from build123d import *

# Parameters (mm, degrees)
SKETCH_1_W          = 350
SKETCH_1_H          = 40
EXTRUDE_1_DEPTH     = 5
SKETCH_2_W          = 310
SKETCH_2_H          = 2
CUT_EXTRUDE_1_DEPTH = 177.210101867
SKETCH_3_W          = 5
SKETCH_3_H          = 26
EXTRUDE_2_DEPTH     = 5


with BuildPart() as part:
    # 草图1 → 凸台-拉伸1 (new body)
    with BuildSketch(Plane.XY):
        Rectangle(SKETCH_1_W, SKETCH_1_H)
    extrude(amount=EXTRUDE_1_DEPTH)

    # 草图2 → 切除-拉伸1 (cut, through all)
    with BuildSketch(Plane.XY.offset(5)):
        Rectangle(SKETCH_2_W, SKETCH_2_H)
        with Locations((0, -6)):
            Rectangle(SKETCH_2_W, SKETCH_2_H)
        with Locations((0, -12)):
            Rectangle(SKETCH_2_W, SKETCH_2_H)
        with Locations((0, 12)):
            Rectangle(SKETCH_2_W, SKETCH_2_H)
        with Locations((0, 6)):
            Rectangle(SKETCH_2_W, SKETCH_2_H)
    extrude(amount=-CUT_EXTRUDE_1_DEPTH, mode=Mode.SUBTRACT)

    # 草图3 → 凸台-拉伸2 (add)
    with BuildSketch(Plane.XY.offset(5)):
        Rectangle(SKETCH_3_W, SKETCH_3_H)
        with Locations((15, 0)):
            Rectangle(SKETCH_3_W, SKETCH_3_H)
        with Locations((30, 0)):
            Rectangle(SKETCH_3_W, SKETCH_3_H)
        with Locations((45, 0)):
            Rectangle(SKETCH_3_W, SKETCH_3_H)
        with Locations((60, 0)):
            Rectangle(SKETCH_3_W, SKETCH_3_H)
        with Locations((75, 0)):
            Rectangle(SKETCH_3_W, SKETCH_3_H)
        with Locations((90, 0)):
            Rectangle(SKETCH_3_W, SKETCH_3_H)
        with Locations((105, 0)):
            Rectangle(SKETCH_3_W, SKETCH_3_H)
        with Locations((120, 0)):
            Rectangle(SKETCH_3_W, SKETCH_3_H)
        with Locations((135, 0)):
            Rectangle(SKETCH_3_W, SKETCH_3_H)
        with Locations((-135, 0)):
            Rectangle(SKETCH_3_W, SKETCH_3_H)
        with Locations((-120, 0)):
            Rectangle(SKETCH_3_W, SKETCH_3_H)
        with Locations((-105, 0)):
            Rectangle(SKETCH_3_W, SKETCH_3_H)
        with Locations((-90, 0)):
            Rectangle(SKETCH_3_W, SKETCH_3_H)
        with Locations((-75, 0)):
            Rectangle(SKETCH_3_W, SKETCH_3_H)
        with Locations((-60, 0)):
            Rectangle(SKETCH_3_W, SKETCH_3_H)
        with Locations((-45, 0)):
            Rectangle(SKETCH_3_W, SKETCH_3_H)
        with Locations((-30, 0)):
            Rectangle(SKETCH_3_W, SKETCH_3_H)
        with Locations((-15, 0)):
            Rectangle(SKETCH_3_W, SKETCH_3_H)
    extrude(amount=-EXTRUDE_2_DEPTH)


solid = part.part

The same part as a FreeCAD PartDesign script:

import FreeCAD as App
import Part
import Sketcher
from FreeCAD import Vector


def add_polygon(sketch, points):
    """Adds a closed chain of lines whose ends are joined by coincident constraints."""
    first, n = sketch.GeometryCount, len(points)
    for a, b in zip(points, points[1:] + points[:1]):
        sketch.addGeometry(Part.LineSegment(App.Vector(*a, 0), App.Vector(*b, 0)), False)
    for i in range(n):
        sketch.addConstraint(Sketcher.Constraint("Coincident", first + i, 2, first + (i + 1) % n, 1))

doc = App.newDocument("Part")
params = doc.addObject("Spreadsheet::Sheet", "Params")
for row, (alias, value) in enumerate([
    ("sketch1_width", "350 mm"),
    ("sketch1_height", "40 mm"),
    ("pad1_length", "5 mm"),
    ("sketch2_width", "310 mm"),
    ("sketch2_height", "2 mm"),
    ("sketch3_width", "5 mm"),
    ("sketch3_height", "26 mm"),
    ("pad2_length", "5 mm"),
], start=1):
    params.set(f"A{row}", alias)
    params.set(f"B{row}", "=" + value)
    params.setAlias(f"B{row}", alias)

body = doc.addObject("PartDesign::Body", "Body")

sketch1 = doc.addObject("Sketcher::SketchObject", "Sketch")
body.addObject(sketch1)
sketch1.AttachmentSupport = (doc.XY_Plane, [""])
sketch1.MapMode = "FlatFace"
add_polygon(sketch1, [(-175, 20), (-175, -20), (175, -20), (175, 20)])
sketch1.addConstraint([
    Sketcher.Constraint("Vertical", 0),
    Sketcher.Constraint("Horizontal", 1),
    Sketcher.Constraint("Vertical", 2),
    Sketcher.Constraint("Horizontal", 3),
    Sketcher.Constraint("Symmetric", 0, 2, 2, 2, -1, 1),
    Sketcher.Constraint("DistanceX", 1, 1, 1, 2, 350.0),
    Sketcher.Constraint("DistanceY", 0, 2, 0, 1, 40.0),
])
sketch1.setExpression("Constraints[9]", "Params.sketch1_width")
sketch1.setExpression("Constraints[10]", "Params.sketch1_height")
pad1 = doc.addObject("PartDesign::Pad", "Pad")
body.addObject(pad1)
pad1.Profile = sketch1
pad1.setExpression("Length", "Params.pad1_length")

sketch2 = doc.addObject("Sketcher::SketchObject", "Sketch001")
body.addObject(sketch2)
sketch2.AttachmentSupport = (doc.XY_Plane, [""])
sketch2.MapMode = "FlatFace"
sketch2.AttachmentOffset = App.Placement(Vector(0, 0, 5), App.Rotation())
add_polygon(sketch2, [(-155, 1), (-155, -1), (155, -1), (155, 1)])
add_polygon(sketch2, [(-155, -5), (-155, -7), (155, -7), (155, -5)])
add_polygon(sketch2, [(-155, -11), (-155, -13), (155, -13), (155, -11)])
add_polygon(sketch2, [(-155, 13), (-155, 11), (155, 11), (155, 13)])
add_polygon(sketch2, [(-155, 7), (-155, 5), (155, 5), (155, 7)])
sketch2.addConstraint([
    Sketcher.Constraint("Vertical", 0),
    Sketcher.Constraint("Horizontal", 1),
    Sketcher.Constraint("Vertical", 2),
    Sketcher.Constraint("Horizontal", 3),
    Sketcher.Constraint("Vertical", 4),
    Sketcher.Constraint("Horizontal", 5),
    Sketcher.Constraint("Vertical", 6),
    Sketcher.Constraint("Horizontal", 7),
    Sketcher.Constraint("Vertical", 8),
    Sketcher.Constraint("Horizontal", 9),
    Sketcher.Constraint("Vertical", 10),
    Sketcher.Constraint("Horizontal", 11),
    Sketcher.Constraint("Vertical", 12),
    Sketcher.Constraint("Horizontal", 13),
    Sketcher.Constraint("Vertical", 14),
    Sketcher.Constraint("Horizontal", 15),
    Sketcher.Constraint("Vertical", 16),
    Sketcher.Constraint("Horizontal", 17),
    Sketcher.Constraint("Vertical", 18),
    Sketcher.Constraint("Horizontal", 19),
    Sketcher.Constraint("Symmetric", 0, 2, 2, 2, -1, 1),
    Sketcher.Constraint("Symmetric", 10, 2, 12, 2, -1, 1),
    Sketcher.Constraint("Symmetric", 8, 2, 14, 2, -1, 1),
    Sketcher.Constraint("Symmetric", 6, 2, 16, 2, -1, 1),
    Sketcher.Constraint("Symmetric", 4, 2, 18, 2, -1, 1),
    Sketcher.Constraint("Vertical", 3, 2, 4, 2),
    Sketcher.Constraint("Vertical", 2, 2, 5, 2),
    Sketcher.Constraint("Vertical", 7, 2, 8, 2),
    Sketcher.Constraint("Vertical", 6, 2, 9, 2),
    Sketcher.Constraint("Equal", 2, 4),
    Sketcher.Constraint("Equal", 6, 8),
    Sketcher.Constraint("DistanceX", 1, 1, 1, 2, 310.0),
    Sketcher.Constraint("DistanceY", 0, 2, 0, 1, 2.0),
    Sketcher.Constraint("DistanceY", 4, 2, -1, 1, 7.0),
    Sketcher.Constraint("DistanceY", 8, 2, -1, 1, 13.0),
])
sketch2.setExpression("Constraints[51]", "Params.sketch2_width")
sketch2.setExpression("Constraints[52]", "Params.sketch2_height")
pocket1 = doc.addObject("PartDesign::Pocket", "Pocket")
body.addObject(pocket1)
pocket1.Profile = sketch2
pocket1.Type = "ThroughAll"

sketch3 = doc.addObject("Sketcher::SketchObject", "Sketch002")
body.addObject(sketch3)
sketch3.AttachmentSupport = (doc.XY_Plane, [""])
sketch3.MapMode = "FlatFace"
sketch3.AttachmentOffset = App.Placement(Vector(0, 0, 5), App.Rotation())
add_polygon(sketch3, [(-2, 13), (-2, -13), (2, -13), (2, 13)])
add_polygon(sketch3, [(12, 13), (12, -13), (18, -13), (18, 13)])
add_polygon(sketch3, [(28, 13), (28, -13), (32, -13), (32, 13)])
add_polygon(sketch3, [(42, 13), (42, -13), (48, -13), (48, 13)])
add_polygon(sketch3, [(58, 13), (58, -13), (62, -13), (62, 13)])
add_polygon(sketch3, [(72, 13), (72, -13), (78, -13), (78, 13)])
add_polygon(sketch3, [(88, 13), (88, -13), (92, -13), (92, 13)])
add_polygon(sketch3, [(102, 13), (102, -13), (108, -13), (108, 13)])
add_polygon(sketch3, [(118, 13), (118, -13), (122, -13), (122, 13)])
add_polygon(sketch3, [(132, 13), (132, -13), (138, -13), (138, 13)])
add_polygon(sketch3, [(-138, 13), (-138, -13), (-132, -13), (-132, 13)])
add_polygon(sketch3, [(-122, 13), (-122, -13), (-118, -13), (-118, 13)])
add_polygon(sketch3, [(-108, 13), (-108, -13), (-102, -13), (-102, 13)])
add_polygon(sketch3, [(-92, 13), (-92, -13), (-88, -13), (-88, 13)])
add_polygon(sketch3, [(-78, 13), (-78, -13), (-72, -13), (-72, 13)])
add_polygon(sketch3, [(-62, 13), (-62, -13), (-58, -13), (-58, 13)])
add_polygon(sketch3, [(-48, 13), (-48, -13), (-42, -13), (-42, 13)])
add_polygon(sketch3, [(-32, 13), (-32, -13), (-28, -13), (-28, 13)])
add_polygon(sketch3, [(-18, 13), (-18, -13), (-12, -13), (-12, 13)])
sketch3.addConstraint([
    Sketcher.Constraint("Vertical", 0),
    Sketcher.Constraint("Horizontal", 1),
    Sketcher.Constraint("Vertical", 2),
    Sketcher.Constraint("Horizontal", 3),
    Sketcher.Constraint("Vertical", 4),
    Sketcher.Constraint("Horizontal", 5),
    Sketcher.Constraint("Vertical", 6),
    Sketcher.Constraint("Horizontal", 7),
    Sketcher.Constraint("Vertical", 8),
    Sketcher.Constraint("Horizontal", 9),
    Sketcher.Constraint("Vertical", 10),
    Sketcher.Constraint("Horizontal", 11),
    Sketcher.Constraint("Vertical", 12),
    Sketcher.Constraint("Horizontal", 13),
    Sketcher.Constraint("Vertical", 14),
    Sketcher.Constraint("Horizontal", 15),
    Sketcher.Constraint("Vertical", 16),
    Sketcher.Constraint("Horizontal", 17),
    Sketcher.Constraint("Vertical", 18),
    Sketcher.Constraint("Horizontal", 19),
    Sketcher.Constraint("Vertical", 20),
    Sketcher.Constraint("Horizontal", 21),
    Sketcher.Constraint("Vertical", 22),
    Sketcher.Constraint("Horizontal", 23),
    Sketcher.Constraint("Vertical", 24),
    Sketcher.Constraint("Horizontal", 25),
    Sketcher.Constraint("Vertical", 26),
    Sketcher.Constraint("Horizontal", 27),
    Sketcher.Constraint("Vertical", 28),
    Sketcher.Constraint("Horizontal", 29),
    Sketcher.Constraint("Vertical", 30),
    Sketcher.Constraint("Horizontal", 31),
    Sketcher.Constraint("Vertical", 32),
    Sketcher.Constraint("Horizontal", 33),
    Sketcher.Constraint("Vertical", 34),
    Sketcher.Constraint("Horizontal", 35),
    Sketcher.Constraint("Vertical", 36),
    Sketcher.Constraint("Horizontal", 37),
    Sketcher.Constraint("Vertical", 38),
    Sketcher.Constraint("Horizontal", 39),
    Sketcher.Constraint("Vertical", 40),
    Sketcher.Constraint("Horizontal", 41),
    Sketcher.Constraint("Vertical", 42),
    Sketcher.Constraint("Horizontal", 43),
    Sketcher.Constraint("Vertical", 44),
    Sketcher.Constraint("Horizontal", 45),
    Sketcher.Constraint("Vertical", 46),
    Sketcher.Constraint("Horizontal", 47),
    Sketcher.Constraint("Vertical", 48),
    Sketcher.Constraint("Horizontal", 49),
    Sketcher.Constraint("Vertical", 50),
    Sketcher.Constraint("Horizontal", 51),
    Sketcher.Constraint("Vertical", 52),
    Sketcher.Constraint("Horizontal", 53),
    Sketcher.Constraint("Vertical", 54),
    Sketcher.Constraint("Horizontal", 55),
    Sketcher.Constraint("Vertical", 56),
    Sketcher.Constraint("Horizontal", 57),
    Sketcher.Constraint("Vertical", 58),
    Sketcher.Constraint("Horizontal", 59),
    Sketcher.Constraint("Vertical", 60),
    Sketcher.Constraint("Horizontal", 61),
    Sketcher.Constraint("Vertical", 62),
    Sketcher.Constraint("Horizontal", 63),
    Sketcher.Constraint("Vertical", 64),
    Sketcher.Constraint("Horizontal", 65),
    Sketcher.Constraint("Vertical", 66),
    Sketcher.Constraint("Horizontal", 67),
    Sketcher.Constraint("Vertical", 68),
    Sketcher.Constraint("Horizontal", 69),
    Sketcher.Constraint("Vertical", 70),
    Sketcher.Constraint("Horizontal", 71),
    Sketcher.Constraint("Vertical", 72),
    Sketcher.Constraint("Horizontal", 73),
    Sketcher.Constraint("Vertical", 74),
    Sketcher.Constraint("Horizontal", 75),
    Sketcher.Constraint("Symmetric", 0, 2, 2, 2, -1, 1),
    Sketcher.Constraint("Symmetric", 38, 2, 40, 2, -1, 1),
    Sketcher.Constraint("Symmetric", 36, 2, 42, 2, -1, 1),
    Sketcher.Constraint("Symmetric", 34, 2, 44, 2, -1, 1),
    Sketcher.Constraint("Symmetric", 32, 2, 46, 2, -1, 1),
    Sketcher.Constraint("Symmetric", 30, 2, 48, 2, -1, 1),
    Sketcher.Constraint("Symmetric", 28, 2, 50, 2, -1, 1),
    Sketcher.Constraint("Symmetric", 26, 2, 52, 2, -1, 1),
    Sketcher.Constraint("Symmetric", 24, 2, 54, 2, -1, 1),
    Sketcher.Constraint("Symmetric", 22, 2, 56, 2, -1, 1),
    Sketcher.Constraint("Symmetric", 20, 2, 58, 2, -1, 1),
    Sketcher.Constraint("Symmetric", 18, 2, 60, 2, -1, 1),
    Sketcher.Constraint("Symmetric", 16, 2, 62, 2, -1, 1),
    Sketcher.Constraint("Symmetric", 14, 2, 64, 2, -1, 1),
    Sketcher.Constraint("Symmetric", 12, 2, 66, 2, -1, 1),
    Sketcher.Constraint("Symmetric", 10, 2, 68, 2, -1, 1),
    Sketcher.Constraint("Symmetric", 8, 2, 70, 2, -1, 1),
    Sketcher.Constraint("Symmetric", 6, 2, 72, 2, -1, 1),
    Sketcher.Constraint("Symmetric", 4, 2, 74, 2, -1, 1),
    Sketcher.Constraint("Horizontal", 1, 2, 4, 2),
    Sketcher.Constraint("Horizontal", 3, 2, 6, 2),
    Sketcher.Constraint("Horizontal", 5, 2, 8, 2),
    Sketcher.Constraint("Horizontal", 7, 2, 10, 2),
    Sketcher.Constraint("Horizontal", 9, 2, 12, 2),
    Sketcher.Constraint("Horizontal", 11, 2, 14, 2),
    Sketcher.Constraint("Horizontal", 13, 2, 16, 2),
    Sketcher.Constraint("Horizontal", 15, 2, 18, 2),
    Sketcher.Constraint("Horizontal", 17, 2, 20, 2),
    Sketcher.Constraint("Horizontal", 19, 2, 22, 2),
    Sketcher.Constraint("Horizontal", 21, 2, 24, 2),
    Sketcher.Constraint("Horizontal", 23, 2, 26, 2),
    Sketcher.Constraint("Horizontal", 25, 2, 28, 2),
    Sketcher.Constraint("Horizontal", 27, 2, 30, 2),
    Sketcher.Constraint("Horizontal", 29, 2, 32, 2),
    Sketcher.Constraint("Horizontal", 31, 2, 34, 2),
    Sketcher.Constraint("Horizontal", 33, 2, 36, 2),
    Sketcher.Constraint("Horizontal", 35, 2, 38, 2),
    Sketcher.Constraint("Equal", 3, 5),
    Sketcher.Constraint("Equal", 7, 9),
    Sketcher.Constraint("Equal", 11, 13),
    Sketcher.Constraint("Equal", 15, 17),
    Sketcher.Constraint("Equal", 19, 21),
    Sketcher.Constraint("Equal", 23, 25),
    Sketcher.Constraint("Equal", 27, 29),
    Sketcher.Constraint("Equal", 31, 33),
    Sketcher.Constraint("Equal", 35, 37),
    Sketcher.Constraint("DistanceX", 1, 1, 1, 2, 5.0),
    Sketcher.Constraint("DistanceY", 0, 2, 0, 1, 26.0),
    Sketcher.Constraint("DistanceX", -1, 1, 4, 2, 12.5),
    Sketcher.Constraint("DistanceX", -1, 1, 8, 2, 27.5),
    Sketcher.Constraint("DistanceX", -1, 1, 12, 2, 42.5),
    Sketcher.Constraint("DistanceX", -1, 1, 16, 2, 57.5),
    Sketcher.Constraint("DistanceX", -1, 1, 20, 2, 72.5),
    Sketcher.Constraint("DistanceX", -1, 1, 24, 2, 87.5),
    Sketcher.Constraint("DistanceX", -1, 1, 28, 2, 102.5),
    Sketcher.Constraint("DistanceX", -1, 1, 32, 2, 117.5),
    Sketcher.Constraint("DistanceX", -1, 1, 36, 2, 132.5),
])
sketch3.setExpression("Constraints[198]", "Params.sketch3_width")
sketch3.setExpression("Constraints[199]", "Params.sketch3_height")
pad2 = doc.addObject("PartDesign::Pad", "Pad001")
body.addObject(pad2)
pad2.Profile = sketch3
pad2.setExpression("Length", "Params.pad2_length")
pad2.Reversed = True

doc.recompute()
